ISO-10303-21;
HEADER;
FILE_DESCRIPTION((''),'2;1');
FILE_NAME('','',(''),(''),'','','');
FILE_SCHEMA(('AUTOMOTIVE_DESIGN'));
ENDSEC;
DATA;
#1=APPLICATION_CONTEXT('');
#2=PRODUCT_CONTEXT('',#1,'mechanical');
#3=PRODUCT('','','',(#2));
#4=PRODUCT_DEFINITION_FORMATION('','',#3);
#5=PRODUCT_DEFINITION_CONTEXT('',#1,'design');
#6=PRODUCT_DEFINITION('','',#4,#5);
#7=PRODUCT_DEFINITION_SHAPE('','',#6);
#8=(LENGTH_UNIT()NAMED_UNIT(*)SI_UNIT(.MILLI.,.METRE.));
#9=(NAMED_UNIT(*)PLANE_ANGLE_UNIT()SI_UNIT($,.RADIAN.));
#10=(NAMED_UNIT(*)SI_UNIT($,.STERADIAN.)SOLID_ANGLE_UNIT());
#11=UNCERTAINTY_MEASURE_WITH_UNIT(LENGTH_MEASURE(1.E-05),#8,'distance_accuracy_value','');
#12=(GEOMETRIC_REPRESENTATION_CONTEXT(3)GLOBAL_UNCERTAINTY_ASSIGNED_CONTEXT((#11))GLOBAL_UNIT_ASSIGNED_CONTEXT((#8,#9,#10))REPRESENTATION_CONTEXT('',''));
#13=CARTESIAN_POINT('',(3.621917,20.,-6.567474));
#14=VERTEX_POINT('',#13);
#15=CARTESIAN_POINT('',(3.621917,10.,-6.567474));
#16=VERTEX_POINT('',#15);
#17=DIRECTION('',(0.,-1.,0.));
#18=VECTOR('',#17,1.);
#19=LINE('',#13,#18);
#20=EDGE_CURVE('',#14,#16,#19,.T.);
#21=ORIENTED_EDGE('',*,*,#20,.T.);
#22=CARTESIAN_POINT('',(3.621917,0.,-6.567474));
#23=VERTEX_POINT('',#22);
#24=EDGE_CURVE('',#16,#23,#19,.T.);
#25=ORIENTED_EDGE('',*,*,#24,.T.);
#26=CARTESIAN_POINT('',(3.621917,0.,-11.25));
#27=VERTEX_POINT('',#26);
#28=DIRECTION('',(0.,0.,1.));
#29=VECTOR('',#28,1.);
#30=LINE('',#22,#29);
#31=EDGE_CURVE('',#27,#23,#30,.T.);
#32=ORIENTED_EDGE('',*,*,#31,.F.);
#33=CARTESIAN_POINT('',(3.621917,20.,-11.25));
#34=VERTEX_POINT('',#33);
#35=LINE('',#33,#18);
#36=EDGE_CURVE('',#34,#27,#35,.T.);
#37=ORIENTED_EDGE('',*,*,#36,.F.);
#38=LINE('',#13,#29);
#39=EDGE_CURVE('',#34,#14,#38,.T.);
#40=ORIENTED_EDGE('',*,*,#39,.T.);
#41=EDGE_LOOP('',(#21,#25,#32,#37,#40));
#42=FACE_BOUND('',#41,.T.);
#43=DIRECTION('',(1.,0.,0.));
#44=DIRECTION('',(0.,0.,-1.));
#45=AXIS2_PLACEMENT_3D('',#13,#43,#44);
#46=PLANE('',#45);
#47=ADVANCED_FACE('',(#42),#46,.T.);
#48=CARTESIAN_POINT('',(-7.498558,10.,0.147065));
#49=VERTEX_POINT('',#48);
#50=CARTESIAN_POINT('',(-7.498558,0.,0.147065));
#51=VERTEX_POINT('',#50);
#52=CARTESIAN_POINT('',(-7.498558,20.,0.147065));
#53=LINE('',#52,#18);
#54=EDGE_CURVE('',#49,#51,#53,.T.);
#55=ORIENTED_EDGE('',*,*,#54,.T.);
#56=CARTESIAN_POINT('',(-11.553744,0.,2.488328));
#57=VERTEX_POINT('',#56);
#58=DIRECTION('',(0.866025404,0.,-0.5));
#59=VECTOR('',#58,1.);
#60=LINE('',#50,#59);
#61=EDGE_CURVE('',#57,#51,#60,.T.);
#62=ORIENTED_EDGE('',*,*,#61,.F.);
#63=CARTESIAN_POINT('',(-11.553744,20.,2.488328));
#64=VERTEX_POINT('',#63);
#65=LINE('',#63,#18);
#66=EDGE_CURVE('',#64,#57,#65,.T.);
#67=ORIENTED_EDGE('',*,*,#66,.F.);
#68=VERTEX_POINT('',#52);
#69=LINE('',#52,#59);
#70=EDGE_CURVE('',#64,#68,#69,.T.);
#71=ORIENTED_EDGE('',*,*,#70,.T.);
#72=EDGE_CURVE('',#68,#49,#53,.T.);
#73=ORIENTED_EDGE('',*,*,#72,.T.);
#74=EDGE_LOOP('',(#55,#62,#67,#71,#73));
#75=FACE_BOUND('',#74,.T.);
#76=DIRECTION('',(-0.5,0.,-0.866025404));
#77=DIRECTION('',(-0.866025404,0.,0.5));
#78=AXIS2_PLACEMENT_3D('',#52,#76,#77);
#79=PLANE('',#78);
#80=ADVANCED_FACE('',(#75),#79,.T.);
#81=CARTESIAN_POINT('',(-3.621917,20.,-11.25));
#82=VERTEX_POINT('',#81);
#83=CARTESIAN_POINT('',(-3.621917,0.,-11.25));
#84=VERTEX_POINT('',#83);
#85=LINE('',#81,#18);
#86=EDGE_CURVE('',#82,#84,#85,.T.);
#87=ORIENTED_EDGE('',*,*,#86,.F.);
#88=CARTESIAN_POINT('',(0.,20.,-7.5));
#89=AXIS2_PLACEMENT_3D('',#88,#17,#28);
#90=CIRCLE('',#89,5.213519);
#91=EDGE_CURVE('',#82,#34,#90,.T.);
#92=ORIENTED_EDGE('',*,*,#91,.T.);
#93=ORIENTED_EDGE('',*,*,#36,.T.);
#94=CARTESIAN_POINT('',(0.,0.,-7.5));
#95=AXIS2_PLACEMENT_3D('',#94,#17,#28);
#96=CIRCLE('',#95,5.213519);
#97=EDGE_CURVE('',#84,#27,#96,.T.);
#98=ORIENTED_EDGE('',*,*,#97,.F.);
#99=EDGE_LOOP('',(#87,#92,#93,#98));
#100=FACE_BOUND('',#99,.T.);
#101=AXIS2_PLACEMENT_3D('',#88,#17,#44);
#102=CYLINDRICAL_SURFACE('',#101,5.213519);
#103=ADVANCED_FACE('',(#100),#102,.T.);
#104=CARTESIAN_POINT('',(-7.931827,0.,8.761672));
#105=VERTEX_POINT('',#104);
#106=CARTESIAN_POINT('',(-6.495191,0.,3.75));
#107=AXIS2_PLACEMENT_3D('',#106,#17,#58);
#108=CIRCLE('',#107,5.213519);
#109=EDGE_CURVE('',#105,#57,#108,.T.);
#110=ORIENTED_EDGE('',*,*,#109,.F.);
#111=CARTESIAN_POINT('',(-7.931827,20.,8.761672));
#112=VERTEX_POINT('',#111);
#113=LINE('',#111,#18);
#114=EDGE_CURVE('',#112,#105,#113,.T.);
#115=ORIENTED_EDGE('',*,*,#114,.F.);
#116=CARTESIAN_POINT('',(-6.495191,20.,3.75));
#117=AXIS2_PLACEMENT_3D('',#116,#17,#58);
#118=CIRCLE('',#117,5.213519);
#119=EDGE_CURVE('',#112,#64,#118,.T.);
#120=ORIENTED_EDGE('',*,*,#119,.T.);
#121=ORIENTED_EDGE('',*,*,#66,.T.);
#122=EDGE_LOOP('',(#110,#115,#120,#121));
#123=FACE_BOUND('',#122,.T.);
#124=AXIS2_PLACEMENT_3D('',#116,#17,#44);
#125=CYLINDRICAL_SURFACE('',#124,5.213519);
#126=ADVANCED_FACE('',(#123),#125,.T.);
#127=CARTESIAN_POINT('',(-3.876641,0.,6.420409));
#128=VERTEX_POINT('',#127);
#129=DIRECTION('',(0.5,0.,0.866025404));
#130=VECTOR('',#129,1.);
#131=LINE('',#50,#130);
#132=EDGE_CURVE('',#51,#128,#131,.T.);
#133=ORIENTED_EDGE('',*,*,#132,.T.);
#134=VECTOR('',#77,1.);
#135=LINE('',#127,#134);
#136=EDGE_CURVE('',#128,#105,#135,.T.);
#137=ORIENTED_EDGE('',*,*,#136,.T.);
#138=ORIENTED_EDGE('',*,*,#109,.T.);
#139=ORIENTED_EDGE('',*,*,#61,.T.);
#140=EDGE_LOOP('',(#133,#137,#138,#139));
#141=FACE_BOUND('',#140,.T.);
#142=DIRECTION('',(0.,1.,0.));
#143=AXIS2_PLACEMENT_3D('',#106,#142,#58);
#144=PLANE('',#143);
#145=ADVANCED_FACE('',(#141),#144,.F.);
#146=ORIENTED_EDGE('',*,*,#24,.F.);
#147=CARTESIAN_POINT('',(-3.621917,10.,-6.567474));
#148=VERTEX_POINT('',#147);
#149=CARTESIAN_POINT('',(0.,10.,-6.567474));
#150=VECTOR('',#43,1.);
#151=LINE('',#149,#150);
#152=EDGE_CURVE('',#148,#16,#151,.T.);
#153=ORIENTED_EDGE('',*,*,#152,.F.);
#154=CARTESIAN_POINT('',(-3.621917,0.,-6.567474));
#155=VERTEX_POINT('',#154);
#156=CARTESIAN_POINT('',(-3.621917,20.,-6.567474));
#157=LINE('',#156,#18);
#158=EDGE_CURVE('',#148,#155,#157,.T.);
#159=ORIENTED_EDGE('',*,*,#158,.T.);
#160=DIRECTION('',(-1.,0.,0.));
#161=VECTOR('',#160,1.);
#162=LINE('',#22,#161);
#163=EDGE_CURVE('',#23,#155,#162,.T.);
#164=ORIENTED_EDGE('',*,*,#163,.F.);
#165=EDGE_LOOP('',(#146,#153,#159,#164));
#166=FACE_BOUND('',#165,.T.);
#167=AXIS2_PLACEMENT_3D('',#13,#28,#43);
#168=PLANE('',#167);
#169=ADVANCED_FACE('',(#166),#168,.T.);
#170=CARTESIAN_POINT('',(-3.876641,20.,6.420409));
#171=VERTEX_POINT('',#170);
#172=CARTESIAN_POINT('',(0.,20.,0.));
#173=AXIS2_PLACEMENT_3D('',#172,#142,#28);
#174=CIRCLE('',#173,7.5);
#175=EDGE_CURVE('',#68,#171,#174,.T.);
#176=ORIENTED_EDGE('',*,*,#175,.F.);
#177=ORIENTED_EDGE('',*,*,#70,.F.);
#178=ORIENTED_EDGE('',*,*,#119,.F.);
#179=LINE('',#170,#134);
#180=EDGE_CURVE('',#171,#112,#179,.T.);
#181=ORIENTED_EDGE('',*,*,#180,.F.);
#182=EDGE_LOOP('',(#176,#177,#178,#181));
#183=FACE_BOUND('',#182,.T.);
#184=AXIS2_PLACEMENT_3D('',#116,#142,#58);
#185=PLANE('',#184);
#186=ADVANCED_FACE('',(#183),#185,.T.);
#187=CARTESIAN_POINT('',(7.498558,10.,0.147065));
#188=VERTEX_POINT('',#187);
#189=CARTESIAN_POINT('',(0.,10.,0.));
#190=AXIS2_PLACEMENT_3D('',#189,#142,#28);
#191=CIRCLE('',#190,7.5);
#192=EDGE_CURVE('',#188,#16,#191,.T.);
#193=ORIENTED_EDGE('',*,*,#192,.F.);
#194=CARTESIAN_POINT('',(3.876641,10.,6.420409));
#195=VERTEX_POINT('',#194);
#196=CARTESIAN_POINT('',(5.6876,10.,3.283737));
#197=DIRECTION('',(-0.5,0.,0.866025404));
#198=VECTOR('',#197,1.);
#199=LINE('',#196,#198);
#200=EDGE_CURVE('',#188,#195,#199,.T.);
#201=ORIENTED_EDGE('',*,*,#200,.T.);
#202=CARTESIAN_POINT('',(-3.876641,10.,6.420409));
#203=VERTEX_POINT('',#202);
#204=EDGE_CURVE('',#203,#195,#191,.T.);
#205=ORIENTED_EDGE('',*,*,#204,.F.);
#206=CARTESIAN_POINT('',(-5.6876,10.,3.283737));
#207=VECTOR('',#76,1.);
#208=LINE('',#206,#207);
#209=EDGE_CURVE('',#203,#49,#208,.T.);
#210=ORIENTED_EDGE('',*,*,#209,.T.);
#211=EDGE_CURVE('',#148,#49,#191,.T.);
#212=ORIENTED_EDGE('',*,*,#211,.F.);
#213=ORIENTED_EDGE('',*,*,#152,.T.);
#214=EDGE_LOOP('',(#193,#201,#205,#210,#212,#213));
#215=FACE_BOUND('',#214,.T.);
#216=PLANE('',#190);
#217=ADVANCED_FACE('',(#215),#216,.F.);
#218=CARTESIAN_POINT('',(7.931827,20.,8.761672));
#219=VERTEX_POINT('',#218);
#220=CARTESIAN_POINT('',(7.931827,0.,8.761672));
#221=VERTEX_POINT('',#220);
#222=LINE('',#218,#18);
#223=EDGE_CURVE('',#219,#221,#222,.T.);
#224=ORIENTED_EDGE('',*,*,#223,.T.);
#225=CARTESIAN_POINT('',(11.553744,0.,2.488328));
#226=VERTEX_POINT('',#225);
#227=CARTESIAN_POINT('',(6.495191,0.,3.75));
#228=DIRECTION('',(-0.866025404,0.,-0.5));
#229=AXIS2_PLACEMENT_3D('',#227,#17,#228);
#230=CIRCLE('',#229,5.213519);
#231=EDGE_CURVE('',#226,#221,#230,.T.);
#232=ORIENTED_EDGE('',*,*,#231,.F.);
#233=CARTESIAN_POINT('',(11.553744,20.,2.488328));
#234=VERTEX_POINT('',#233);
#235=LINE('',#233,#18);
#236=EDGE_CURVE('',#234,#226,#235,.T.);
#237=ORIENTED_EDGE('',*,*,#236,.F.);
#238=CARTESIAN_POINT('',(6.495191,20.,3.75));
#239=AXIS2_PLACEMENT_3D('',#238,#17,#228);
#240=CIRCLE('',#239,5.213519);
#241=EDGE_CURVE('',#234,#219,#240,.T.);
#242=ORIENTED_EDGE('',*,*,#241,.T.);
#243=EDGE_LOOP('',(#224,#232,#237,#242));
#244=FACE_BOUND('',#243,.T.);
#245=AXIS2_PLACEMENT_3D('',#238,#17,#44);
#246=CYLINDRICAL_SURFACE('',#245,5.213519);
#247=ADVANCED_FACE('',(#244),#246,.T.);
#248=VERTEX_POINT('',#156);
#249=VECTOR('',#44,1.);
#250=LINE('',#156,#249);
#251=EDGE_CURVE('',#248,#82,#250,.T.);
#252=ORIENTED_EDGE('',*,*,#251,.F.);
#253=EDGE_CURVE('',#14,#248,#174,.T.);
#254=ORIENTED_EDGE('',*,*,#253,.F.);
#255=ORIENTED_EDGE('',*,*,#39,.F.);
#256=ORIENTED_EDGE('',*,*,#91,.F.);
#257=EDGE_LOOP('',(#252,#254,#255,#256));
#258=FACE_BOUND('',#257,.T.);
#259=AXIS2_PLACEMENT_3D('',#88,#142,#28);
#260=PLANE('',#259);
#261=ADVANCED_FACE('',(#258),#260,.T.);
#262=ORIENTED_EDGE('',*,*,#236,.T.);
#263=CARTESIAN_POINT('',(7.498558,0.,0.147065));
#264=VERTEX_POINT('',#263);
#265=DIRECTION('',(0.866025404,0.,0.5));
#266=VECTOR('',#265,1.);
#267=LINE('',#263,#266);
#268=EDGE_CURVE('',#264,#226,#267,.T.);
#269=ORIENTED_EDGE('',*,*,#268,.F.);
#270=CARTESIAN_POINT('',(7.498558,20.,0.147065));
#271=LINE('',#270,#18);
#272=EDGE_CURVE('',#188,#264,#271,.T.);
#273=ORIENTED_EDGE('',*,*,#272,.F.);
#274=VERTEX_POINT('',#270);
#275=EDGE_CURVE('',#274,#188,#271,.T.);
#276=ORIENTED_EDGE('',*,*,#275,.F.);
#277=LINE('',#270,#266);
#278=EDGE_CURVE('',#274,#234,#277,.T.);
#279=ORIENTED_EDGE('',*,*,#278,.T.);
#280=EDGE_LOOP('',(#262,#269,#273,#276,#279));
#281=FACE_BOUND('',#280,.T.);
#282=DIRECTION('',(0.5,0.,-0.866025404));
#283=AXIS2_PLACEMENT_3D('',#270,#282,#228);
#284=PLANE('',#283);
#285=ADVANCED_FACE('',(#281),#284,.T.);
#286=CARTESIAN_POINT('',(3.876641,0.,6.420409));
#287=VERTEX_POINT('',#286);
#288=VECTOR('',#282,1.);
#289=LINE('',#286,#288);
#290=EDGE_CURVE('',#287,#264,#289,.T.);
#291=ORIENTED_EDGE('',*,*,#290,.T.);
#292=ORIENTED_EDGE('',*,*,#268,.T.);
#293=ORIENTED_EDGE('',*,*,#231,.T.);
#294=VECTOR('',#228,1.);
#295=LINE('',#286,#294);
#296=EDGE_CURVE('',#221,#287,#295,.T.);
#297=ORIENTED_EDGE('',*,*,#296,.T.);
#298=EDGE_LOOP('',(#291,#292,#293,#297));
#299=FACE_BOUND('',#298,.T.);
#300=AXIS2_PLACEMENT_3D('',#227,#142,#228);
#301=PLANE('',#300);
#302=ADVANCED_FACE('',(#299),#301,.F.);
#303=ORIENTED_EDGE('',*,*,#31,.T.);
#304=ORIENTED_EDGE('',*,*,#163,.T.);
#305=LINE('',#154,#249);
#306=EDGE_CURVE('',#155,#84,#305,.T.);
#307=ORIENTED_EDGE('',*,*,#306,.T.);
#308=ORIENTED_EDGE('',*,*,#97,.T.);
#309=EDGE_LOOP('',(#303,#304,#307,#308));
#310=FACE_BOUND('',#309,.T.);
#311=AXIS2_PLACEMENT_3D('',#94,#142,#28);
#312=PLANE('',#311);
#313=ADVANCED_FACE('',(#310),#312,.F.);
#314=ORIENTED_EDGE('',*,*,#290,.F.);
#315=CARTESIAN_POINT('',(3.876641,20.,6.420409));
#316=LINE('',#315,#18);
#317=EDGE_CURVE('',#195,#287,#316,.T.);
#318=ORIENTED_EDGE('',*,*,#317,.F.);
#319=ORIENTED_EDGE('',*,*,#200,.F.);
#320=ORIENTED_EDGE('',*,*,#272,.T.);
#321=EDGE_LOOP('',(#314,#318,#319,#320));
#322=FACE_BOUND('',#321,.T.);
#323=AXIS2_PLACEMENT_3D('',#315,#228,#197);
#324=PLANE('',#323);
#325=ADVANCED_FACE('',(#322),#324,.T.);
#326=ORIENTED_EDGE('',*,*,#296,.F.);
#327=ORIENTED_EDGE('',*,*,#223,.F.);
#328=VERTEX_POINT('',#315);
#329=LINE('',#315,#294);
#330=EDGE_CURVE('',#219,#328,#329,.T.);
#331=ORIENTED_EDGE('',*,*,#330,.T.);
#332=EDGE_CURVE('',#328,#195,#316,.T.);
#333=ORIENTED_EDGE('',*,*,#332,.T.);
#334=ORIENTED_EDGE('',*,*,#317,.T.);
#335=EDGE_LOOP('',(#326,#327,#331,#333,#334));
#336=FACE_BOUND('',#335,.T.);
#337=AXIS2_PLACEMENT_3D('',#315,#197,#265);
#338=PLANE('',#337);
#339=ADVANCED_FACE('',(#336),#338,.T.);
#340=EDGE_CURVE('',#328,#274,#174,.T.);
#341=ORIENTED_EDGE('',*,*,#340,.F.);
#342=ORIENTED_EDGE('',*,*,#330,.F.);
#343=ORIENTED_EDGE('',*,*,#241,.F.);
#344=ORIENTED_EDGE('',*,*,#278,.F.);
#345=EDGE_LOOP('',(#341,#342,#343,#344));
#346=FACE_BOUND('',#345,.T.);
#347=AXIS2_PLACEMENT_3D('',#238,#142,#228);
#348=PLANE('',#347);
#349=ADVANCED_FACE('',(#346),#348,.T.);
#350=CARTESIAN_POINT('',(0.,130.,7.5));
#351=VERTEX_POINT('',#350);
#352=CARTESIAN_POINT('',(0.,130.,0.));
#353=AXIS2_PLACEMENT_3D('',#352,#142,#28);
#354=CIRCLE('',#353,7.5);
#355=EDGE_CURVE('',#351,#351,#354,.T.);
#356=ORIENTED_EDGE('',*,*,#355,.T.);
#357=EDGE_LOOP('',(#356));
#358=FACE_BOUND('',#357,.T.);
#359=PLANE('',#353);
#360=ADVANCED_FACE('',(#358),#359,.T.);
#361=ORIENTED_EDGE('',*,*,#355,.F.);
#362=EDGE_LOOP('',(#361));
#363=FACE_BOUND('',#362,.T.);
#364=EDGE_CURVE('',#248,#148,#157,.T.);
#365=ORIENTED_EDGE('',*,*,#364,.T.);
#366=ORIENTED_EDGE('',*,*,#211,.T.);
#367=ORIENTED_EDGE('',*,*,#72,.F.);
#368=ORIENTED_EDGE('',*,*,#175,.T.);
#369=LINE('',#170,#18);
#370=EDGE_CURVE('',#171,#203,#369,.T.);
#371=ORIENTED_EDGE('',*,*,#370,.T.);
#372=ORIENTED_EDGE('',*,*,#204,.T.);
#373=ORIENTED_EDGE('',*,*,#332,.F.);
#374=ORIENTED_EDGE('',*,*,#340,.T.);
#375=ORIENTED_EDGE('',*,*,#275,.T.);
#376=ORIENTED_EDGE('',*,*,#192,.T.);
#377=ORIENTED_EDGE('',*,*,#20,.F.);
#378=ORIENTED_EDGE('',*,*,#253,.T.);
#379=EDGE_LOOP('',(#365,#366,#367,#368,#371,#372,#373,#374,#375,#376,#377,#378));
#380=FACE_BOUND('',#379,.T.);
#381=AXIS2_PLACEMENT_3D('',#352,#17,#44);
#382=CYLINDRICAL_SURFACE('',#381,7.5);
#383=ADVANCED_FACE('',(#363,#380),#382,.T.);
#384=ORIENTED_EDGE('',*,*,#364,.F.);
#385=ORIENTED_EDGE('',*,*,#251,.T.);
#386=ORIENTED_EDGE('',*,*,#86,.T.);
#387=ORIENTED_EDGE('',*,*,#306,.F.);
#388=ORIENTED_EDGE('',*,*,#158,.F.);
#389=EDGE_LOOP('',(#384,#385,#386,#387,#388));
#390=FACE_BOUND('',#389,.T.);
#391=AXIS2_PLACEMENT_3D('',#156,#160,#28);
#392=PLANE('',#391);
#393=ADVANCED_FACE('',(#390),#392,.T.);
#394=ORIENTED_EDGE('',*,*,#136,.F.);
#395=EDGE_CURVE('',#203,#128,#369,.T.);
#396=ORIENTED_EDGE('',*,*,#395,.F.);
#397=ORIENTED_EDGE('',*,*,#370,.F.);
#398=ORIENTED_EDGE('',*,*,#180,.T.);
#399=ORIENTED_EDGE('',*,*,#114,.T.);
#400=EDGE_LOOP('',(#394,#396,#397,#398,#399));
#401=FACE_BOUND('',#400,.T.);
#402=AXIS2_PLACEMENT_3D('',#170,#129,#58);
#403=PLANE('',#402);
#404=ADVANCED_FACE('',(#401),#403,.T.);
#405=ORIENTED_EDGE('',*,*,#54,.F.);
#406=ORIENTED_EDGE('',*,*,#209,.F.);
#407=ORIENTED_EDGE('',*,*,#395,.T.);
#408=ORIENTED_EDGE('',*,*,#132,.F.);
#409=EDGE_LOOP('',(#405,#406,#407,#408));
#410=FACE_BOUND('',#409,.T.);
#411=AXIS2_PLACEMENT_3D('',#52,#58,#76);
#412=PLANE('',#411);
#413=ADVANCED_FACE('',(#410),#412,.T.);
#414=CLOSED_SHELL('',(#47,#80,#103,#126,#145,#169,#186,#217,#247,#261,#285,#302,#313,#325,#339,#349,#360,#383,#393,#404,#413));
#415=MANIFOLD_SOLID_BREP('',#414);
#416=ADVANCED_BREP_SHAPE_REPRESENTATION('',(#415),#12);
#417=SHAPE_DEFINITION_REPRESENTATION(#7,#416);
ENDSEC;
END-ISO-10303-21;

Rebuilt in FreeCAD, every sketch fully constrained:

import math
import FreeCAD as App
import Part
import Sketcher

doc = App.newDocument("Part")
body = doc.addObject("PartDesign::Body", "Body")

# Sketch on XZ plane
sketch1 = doc.addObject("Sketcher::SketchObject", "Sketch")
body.addObject(sketch1)
sketch1.AttachmentSupport = (doc.XZ_Plane, [""])
sketch1.MapMode = "FlatFace"
sketch1.AttachmentOffset = App.Placement(App.Vector(0, 0, -10), App.Rotation())
sketch1.addGeometry(Part.Circle(App.Vector(0, 0, 0), App.Vector(0, 0, 1), 8), False)
sketch1.addConstraint(Sketcher.Constraint("Coincident", 0, 3, -1, 1))
sketch1.addConstraint(Sketcher.Constraint("Diameter", 0, 15.0))
pad1 = doc.addObject("PartDesign::Pad", "Pad")
body.addObject(pad1)
pad1.Profile = sketch1
pad1.Length = 120
pad1.Reversed = True

# Sketch on XZ plane
sketch2 = doc.addObject("Sketcher::SketchObject", "Sketch001")
body.addObject(sketch2)
sketch2.AttachmentSupport = (doc.XZ_Plane, [""])
sketch2.MapMode = "FlatFace"
sketch2.addGeometry(Part.LineSegment(App.Vector(3.6, -6.6, 0), App.Vector(-3.6, -6.6, 0)), False)
sketch2.addGeometry(Part.LineSegment(App.Vector(-3.6, -6.6, 0), App.Vector(-3.6, -11.2, 0)), False)
sketch2.addGeometry(Part.ArcOfCircle(Part.Circle(App.Vector(0, -7.5, 0), App.Vector(0, 0, 1), 5.2), math.radians(-134), math.radians(-46)), False)
sketch2.addGeometry(Part.LineSegment(App.Vector(3.6, -11.2, 0), App.Vector(3.6, -6.6, 0)), False)
sketch2.addConstraint(Sketcher.Constraint("Coincident", 0, 2, 1, 1))
sketch2.addConstraint(Sketcher.Constraint("Coincident", 1, 2, 2, 1))
sketch2.addConstraint(Sketcher.Constraint("Coincident", 2, 2, 3, 1))
sketch2.addConstraint(Sketcher.Constraint("Coincident", 3, 2, 0, 1))
sketch2.addConstraint(Sketcher.Constraint("Horizontal", 0))
sketch2.addConstraint(Sketcher.Constraint("Vertical", 1))
sketch2.addConstraint(Sketcher.Constraint("Vertical", 3))
sketch2.addConstraint(Sketcher.Constraint("Symmetric", 1, 2, 2, 2, -2))
sketch2.addConstraint(Sketcher.Constraint("DistanceY", 2, 3, -1, 1, 7.5))
sketch2.addConstraint(Sketcher.Constraint("DistanceY", 1, 2, -1, 1, 11.25))
sketch2.addConstraint(Sketcher.Constraint("Radius", 2, 5.213519))
sketch2.addConstraint(Sketcher.Constraint("DistanceY", 1, 2, 1, 1, 4.682526))
pad2 = doc.addObject("PartDesign::Pad", "Pad001")
body.addObject(pad2)
pad2.Profile = sketch2
pad2.Length = 20
pad2.Reversed = True
doc.recompute()

polarpattern = doc.addObject("PartDesign::PolarPattern", "PolarPattern")
body.addObject(polarpattern)
polarpattern.Originals = [pad2]
polarpattern.Axis = (doc.Y_Axis, [""])
polarpattern.Angle = 360
polarpattern.Occurrences = 3
body.Tip = polarpattern

doc.recompute()
